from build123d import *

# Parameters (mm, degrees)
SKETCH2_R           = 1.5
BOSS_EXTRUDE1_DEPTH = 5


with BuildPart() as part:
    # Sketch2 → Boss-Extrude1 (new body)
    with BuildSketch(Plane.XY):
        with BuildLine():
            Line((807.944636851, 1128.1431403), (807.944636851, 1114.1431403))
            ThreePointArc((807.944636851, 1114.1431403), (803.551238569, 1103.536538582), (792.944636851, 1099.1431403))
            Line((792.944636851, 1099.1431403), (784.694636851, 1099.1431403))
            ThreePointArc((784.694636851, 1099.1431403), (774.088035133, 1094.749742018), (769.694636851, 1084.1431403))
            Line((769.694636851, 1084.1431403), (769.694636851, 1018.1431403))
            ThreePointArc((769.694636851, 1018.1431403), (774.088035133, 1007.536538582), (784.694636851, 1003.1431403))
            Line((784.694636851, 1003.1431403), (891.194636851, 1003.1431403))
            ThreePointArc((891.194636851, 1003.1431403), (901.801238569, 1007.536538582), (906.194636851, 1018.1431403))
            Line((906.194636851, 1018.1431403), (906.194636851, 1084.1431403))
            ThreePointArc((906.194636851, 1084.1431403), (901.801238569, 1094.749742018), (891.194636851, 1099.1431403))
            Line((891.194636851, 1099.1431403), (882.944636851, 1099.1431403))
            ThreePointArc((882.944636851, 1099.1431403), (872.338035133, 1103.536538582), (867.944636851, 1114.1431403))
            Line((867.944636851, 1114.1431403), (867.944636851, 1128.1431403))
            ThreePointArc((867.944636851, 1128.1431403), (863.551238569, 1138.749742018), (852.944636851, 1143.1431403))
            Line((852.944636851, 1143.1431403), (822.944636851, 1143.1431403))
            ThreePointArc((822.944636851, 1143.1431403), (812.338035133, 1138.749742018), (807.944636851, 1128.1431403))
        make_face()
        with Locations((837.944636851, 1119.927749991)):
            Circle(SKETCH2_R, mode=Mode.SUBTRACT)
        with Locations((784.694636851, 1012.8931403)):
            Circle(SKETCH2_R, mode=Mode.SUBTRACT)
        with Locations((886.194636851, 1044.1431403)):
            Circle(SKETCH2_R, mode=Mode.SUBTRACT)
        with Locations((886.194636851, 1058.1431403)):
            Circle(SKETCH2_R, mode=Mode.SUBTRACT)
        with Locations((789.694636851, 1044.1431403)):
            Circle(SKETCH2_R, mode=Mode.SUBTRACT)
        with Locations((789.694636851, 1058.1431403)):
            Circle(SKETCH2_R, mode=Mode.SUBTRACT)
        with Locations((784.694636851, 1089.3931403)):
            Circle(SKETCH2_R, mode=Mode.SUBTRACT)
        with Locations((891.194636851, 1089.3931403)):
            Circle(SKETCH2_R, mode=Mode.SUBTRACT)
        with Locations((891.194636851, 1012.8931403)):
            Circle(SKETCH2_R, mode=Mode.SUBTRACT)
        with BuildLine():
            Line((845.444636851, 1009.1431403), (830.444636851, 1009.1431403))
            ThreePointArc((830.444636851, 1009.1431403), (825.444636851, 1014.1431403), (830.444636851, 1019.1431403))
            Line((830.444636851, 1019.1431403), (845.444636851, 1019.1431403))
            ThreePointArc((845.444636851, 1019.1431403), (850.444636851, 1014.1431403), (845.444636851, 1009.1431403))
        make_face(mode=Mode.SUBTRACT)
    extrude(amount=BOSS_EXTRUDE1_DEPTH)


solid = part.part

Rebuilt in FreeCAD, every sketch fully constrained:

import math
import FreeCAD as App
import Part
import Sketcher

V = App.Vector

doc = App.newDocument("Part")
body = doc.addObject("PartDesign::Body", "Body")

# Sketch on XY plane
sketch1 = doc.addObject("Sketcher::SketchObject", "Sketch")
body.addObject(sketch1)
sketch1.AttachmentSupport = (doc.XY_Plane, [""])
sketch1.MapMode = "FlatFace"
sketch1.addGeometry([
    Part.LineSegment(V(807.9, 1128.1, 0), V(807.9, 1114.1, 0)),  # 0
    Part.ArcOfCircle(Part.Circle(V(792.9, 1114.1, 0), V(0, 0, 1), 15), math.radians(-90), math.radians(0)),  # 1
    Part.LineSegment(V(792.9, 1099.1, 0), V(784.7, 1099.1, 0)),  # 2
    Part.ArcOfCircle(Part.Circle(V(784.7, 1084.1, 0), V(0, 0, 1), 15), math.radians(90), math.radians(180)),  # 3
    Part.LineSegment(V(769.7, 1084.1, 0), V(769.7, 1018.1, 0)),  # 4
    Part.ArcOfCircle(Part.Circle(V(784.7, 1018.1, 0), V(0, 0, 1), 15), math.radians(180), math.radians(270)),  # 5
    Part.LineSegment(V(784.7, 1003.1, 0), V(891.2, 1003.1, 0)),  # 6
    Part.ArcOfCircle(Part.Circle(V(891.2, 1018.1, 0), V(0, 0, 1), 15), math.radians(-90), math.radians(0)),  # 7
    Part.LineSegment(V(906.2, 1018.1, 0), V(906.2, 1084.1, 0)),  # 8
    Part.ArcOfCircle(Part.Circle(V(891.2, 1084.1, 0), V(0, 0, 1), 15), math.radians(0), math.radians(90)),  # 9
    Part.LineSegment(V(891.2, 1099.1, 0), V(882.9, 1099.1, 0)),  # 10
    Part.ArcOfCircle(Part.Circle(V(882.9, 1114.1, 0), V(0, 0, 1), 15), math.radians(180), math.radians(270)),  # 11
    Part.LineSegment(V(867.9, 1114.1, 0), V(867.9, 1128.1, 0)),  # 12
    Part.ArcOfCircle(Part.Circle(V(852.9, 1128.1, 0), V(0, 0, 1), 15), math.radians(0), math.radians(90)),  # 13
    Part.LineSegment(V(852.9, 1143.1, 0), V(822.9, 1143.1, 0)),  # 14
    Part.ArcOfCircle(Part.Circle(V(822.9, 1128.1, 0), V(0, 0, 1), 15), math.radians(90), math.radians(180)),  # 15
    Part.Circle(V(784.7, 1012.9, 0), V(0, 0, 1), 1.5),  # 16
    Part.Circle(V(789.7, 1044.1, 0), V(0, 0, 1), 1.5),  # 17
    Part.Circle(V(789.7, 1058.1, 0), V(0, 0, 1), 1.5),  # 18
    Part.ArcOfCircle(Part.Circle(V(845.4, 1014.1, 0), V(0, 0, 1), 5), math.radians(-90), math.radians(90)),  # 19
    Part.LineSegment(V(845.4, 1009.1, 0), V(830.4, 1009.1, 0)),  # 20
    Part.ArcOfCircle(Part.Circle(V(830.4, 1014.1, 0), V(0, 0, 1), 5), math.radians(90), math.radians(270)),  # 21
    Part.LineSegment(V(830.4, 1019.1, 0), V(845.4, 1019.1, 0)),  # 22
    Part.Circle(V(891.2, 1012.9, 0), V(0, 0, 1), 1.5),  # 23
    Part.Circle(V(886.2, 1044.1, 0), V(0, 0, 1), 1.5),  # 24
    Part.Circle(V(886.2, 1058.1, 0), V(0, 0, 1), 1.5),  # 25
    Part.Circle(V(784.7, 1089.4, 0), V(0, 0, 1), 1.5),  # 26
    Part.Circle(V(891.2, 1089.4, 0), V(0, 0, 1), 1.5),  # 27
    Part.Circle(V(837.9, 1119.9, 0), V(0, 0, 1), 1.5),  # 28
], False)
sketch1.addConstraint([
    Sketcher.Constraint("Tangent", 0, 2, 1, 2),
    Sketcher.Constraint("Tangent", 1, 1, 2, 1),
    Sketcher.Constraint("Tangent", 2, 2, 3, 1),
    Sketcher.Constraint("Tangent", 3, 2, 4, 1),
    Sketcher.Constraint("Tangent", 4, 2, 5, 1),
    Sketcher.Constraint("Tangent", 5, 2, 6, 1),
    Sketcher.Constraint("Tangent", 6, 2, 7, 1),
    Sketcher.Constraint("Tangent", 7, 2, 8, 1),
    Sketcher.Constraint("Tangent", 8, 2, 9, 1),
    Sketcher.Constraint("Tangent", 9, 2, 10, 1),
    Sketcher.Constraint("Tangent", 10, 2, 11, 2),
    Sketcher.Constraint("Tangent", 11, 1, 12, 1),
    Sketcher.Constraint("Tangent", 12, 2, 13, 1),
    Sketcher.Constraint("Tangent", 13, 2, 14, 1),
    Sketcher.Constraint("Tangent", 14, 2, 15, 1),
    Sketcher.Constraint("Tangent", 15, 2, 0, 1),
    Sketcher.Constraint("Tangent", 19, 1, 20, 1),
    Sketcher.Constraint("Tangent", 20, 2, 21, 2),
    Sketcher.Constraint("Tangent", 21, 1, 22, 1),
    Sketcher.Constraint("Tangent", 22, 2, 19, 2),
    Sketcher.Constraint("Vertical", 0),
    Sketcher.Constraint("Horizontal", 2),
    Sketcher.Constraint("Vertical", 4),
    Sketcher.Constraint("Horizontal", 6),
    Sketcher.Constraint("Vertical", 8),
    Sketcher.Constraint("Horizontal", 10),
    Sketcher.Constraint("Vertical", 12),
    Sketcher.Constraint("Horizontal", 14),
    Sketcher.Constraint("Horizontal", 20),
    Sketcher.Constraint("Horizontal", 22),
    Sketcher.Constraint("Equal", 1, 3),
    Sketcher.Constraint("Equal", 3, 5),
    Sketcher.Constraint("Equal", 5, 7),
    Sketcher.Constraint("Equal", 7, 9),
    Sketcher.Constraint("Equal", 9, 11),
    Sketcher.Constraint("Equal", 11, 13),
    Sketcher.Constraint("Equal", 13, 15),
    Sketcher.Constraint("Equal", 16, 17),
    Sketcher.Constraint("Equal", 17, 18),
    Sketcher.Constraint("Equal", 18, 23),
    Sketcher.Constraint("Equal", 23, 24),
    Sketcher.Constraint("Equal", 24, 25),
    Sketcher.Constraint("Equal", 25, 26),
    Sketcher.Constraint("Equal", 26, 27),
    Sketcher.Constraint("Equal", 27, 28),
    Sketcher.Constraint("Horizontal", 3, 3, 9, 3),
    Sketcher.Constraint("Horizontal", 16, 3, 23, 3),
    Sketcher.Constraint("Horizontal", 17, 3, 24, 3),
    Sketcher.Constraint("Horizontal", 18, 3, 25, 3),
    Sketcher.Constraint("Horizontal", 26, 3, 27, 3),
    Sketcher.Constraint("Vertical", 5, 3, 16, 3),
    Sketcher.Constraint("Vertical", 17, 3, 18, 3),
    Sketcher.Constraint("Vertical", 9, 3, 23, 3),
    Sketcher.Constraint("Vertical", 24, 3, 25, 3),
    Sketcher.Constraint("Vertical", 16, 3, 26, 3),
    Sketcher.Constraint("Vertical", 23, 3, 27, 3),
    Sketcher.Constraint("Equal", 2, 10),
    Sketcher.Constraint("Diameter", 16, 3.0),
    Sketcher.Constraint("Radius", 1, 15.0),
    Sketcher.Constraint("Radius", 19, 5.0),
    Sketcher.Constraint("DistanceX", 14, 2, 14, 1, 30.0),
    Sketcher.Constraint("DistanceX", 20, 2, 20, 1, 15.0),
    Sketcher.Constraint("DistanceY", 0, 2, 0, 1, 14.0),
    Sketcher.Constraint("DistanceY", 4, 2, 4, 1, 66.0),
    Sketcher.Constraint("DistanceX", 6, 1, 6, 2, 106.5),
    Sketcher.Constraint("DistanceX", 5, 3, 17, 3, 5.0),
    Sketcher.Constraint("DistanceY", 5, 3, 17, 3, 26.0),
    Sketcher.Constraint("DistanceY", 17, 3, 18, 3, 14.0),
    Sketcher.Constraint("DistanceY", 19, 3, 7, 3, 4.0),
    Sketcher.Constraint("DistanceX", 24, 3, 7, 3, 5.0),
    Sketcher.Constraint("DistanceX", 28, 3, 13, 3, 15.0),
    Sketcher.Constraint("DistanceY", 16, 3, 5, 3, 5.25),
    Sketcher.Constraint("DistanceX", 19, 3, 7, 3, 45.75),
    Sketcher.Constraint("DistanceY", 3, 3, 26, 3, 5.25),
    Sketcher.Constraint("DistanceY", -1, 1, 1, 3, 1114.14314),
    Sketcher.Constraint("DistanceY", -1, 1, 28, 3, 1119.92775),
    Sketcher.Constraint("DistanceX", -1, 1, 1, 3, 792.944637),
])
pad1 = doc.addObject("PartDesign::Pad", "Pad")
body.addObject(pad1)
pad1.Profile = sketch1
pad1.Length = 5

doc.recompute()
